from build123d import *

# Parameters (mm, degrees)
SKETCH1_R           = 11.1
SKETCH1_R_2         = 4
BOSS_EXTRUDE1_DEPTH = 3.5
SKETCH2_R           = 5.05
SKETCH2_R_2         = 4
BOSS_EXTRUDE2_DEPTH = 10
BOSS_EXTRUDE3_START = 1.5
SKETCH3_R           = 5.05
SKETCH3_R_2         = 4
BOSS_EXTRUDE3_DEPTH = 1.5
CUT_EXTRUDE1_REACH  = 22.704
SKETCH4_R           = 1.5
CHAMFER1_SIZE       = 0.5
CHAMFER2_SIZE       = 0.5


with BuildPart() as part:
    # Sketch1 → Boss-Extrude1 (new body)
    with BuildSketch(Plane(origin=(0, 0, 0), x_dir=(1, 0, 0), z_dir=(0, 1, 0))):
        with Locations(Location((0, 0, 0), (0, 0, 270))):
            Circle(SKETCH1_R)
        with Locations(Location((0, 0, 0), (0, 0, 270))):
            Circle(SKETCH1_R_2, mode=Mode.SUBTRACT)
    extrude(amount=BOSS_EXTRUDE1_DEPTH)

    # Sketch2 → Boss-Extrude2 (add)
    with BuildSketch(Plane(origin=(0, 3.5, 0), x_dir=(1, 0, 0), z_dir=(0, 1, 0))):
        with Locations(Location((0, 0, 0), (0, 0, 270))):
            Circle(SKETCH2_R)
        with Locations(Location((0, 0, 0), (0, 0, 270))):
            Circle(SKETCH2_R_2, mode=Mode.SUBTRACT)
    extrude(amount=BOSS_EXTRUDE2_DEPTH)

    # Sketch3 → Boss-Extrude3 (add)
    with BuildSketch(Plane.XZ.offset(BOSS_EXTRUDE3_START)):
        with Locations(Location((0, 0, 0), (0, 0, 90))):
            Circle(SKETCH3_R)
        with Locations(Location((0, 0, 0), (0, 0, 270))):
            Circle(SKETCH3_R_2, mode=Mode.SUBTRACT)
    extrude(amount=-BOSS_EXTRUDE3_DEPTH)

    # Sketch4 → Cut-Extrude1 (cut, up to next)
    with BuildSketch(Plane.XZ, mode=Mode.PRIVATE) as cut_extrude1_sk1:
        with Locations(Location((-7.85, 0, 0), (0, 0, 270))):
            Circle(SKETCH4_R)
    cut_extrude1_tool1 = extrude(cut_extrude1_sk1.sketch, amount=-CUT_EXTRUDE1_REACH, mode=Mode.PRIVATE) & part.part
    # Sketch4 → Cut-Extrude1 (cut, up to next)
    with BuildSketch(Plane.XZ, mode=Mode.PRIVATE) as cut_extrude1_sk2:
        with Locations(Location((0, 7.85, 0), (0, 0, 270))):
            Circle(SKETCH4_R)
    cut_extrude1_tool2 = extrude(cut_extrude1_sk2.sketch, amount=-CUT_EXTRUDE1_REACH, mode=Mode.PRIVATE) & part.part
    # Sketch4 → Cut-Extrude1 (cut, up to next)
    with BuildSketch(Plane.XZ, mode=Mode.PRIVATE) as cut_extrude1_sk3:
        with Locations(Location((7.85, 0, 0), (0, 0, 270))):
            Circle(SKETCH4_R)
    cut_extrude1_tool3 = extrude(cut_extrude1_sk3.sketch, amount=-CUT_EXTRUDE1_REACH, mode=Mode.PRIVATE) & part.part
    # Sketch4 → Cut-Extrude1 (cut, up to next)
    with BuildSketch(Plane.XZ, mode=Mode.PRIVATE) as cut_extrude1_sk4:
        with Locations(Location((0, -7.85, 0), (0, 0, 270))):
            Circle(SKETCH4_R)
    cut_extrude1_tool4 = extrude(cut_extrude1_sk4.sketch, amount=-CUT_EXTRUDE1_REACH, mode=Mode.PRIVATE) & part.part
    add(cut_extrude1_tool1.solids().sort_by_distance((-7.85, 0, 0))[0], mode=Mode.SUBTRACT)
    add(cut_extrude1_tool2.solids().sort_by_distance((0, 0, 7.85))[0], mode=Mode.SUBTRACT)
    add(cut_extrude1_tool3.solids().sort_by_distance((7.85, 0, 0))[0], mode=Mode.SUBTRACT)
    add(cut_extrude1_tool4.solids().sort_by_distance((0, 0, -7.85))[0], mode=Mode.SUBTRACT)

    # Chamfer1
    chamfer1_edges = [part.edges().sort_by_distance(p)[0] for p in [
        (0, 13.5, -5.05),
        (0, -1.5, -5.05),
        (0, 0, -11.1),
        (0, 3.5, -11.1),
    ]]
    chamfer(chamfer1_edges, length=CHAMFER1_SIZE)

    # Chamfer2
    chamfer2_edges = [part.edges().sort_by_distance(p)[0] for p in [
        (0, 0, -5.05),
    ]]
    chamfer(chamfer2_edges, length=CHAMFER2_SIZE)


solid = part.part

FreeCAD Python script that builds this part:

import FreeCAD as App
import Part
import Sketcher

V = App.Vector
Q = App.Units.Quantity


def edges_at(feature, points):
    """Names of the edges that pass closest to the given points."""
    edges = feature.Shape.Edges
    near = lambda p: min(range(len(edges)), key=lambda i: edges[i].distToShape(Part.Vertex(*p))[0])
    return sorted({f"Edge{near(p) + 1}" for p in points})

doc = App.newDocument("Part")
body = doc.addObject("PartDesign::Body", "Body")

sketch1 = doc.addObject("Sketcher::SketchObject", "Sketch")
body.addObject(sketch1)
sketch1.AttachmentSupport = (doc.XZ_Plane, [""])
sketch1.MapMode = "FlatFace"
sketch1.addGeometry([
    Part.Circle(V(0, 0, 0), V(0, 0, 1), 11.1),
    Part.Circle(V(0, 0, 0), V(0, 0, 1), 4),
], False)
sketch1.addConstraint([
    Sketcher.Constraint("Coincident", 0, 3, -1, 1),
    Sketcher.Constraint("Coincident", 1, 3, -1, 1),
    Sketcher.Constraint("Diameter", 1, Q("8 mm")),
    Sketcher.Constraint("Diameter", 0, Q("22.2 mm")),
])
pad1 = doc.addObject("PartDesign::Pad", "Pad")
body.addObject(pad1)
pad1.Profile = sketch1
pad1.Length = 3.5
pad1.Reversed = True

sketch2 = doc.addObject("Sketcher::SketchObject", "Sketch001")
body.addObject(sketch2)
sketch2.AttachmentSupport = (doc.XZ_Plane, [""])
sketch2.MapMode = "FlatFace"
sketch2.AttachmentOffset = App.Placement(V(0, 0, -3.5), App.Rotation())
sketch2.addGeometry([
    Part.Circle(V(0, 0, 0), V(0, 0, 1), 5),
    Part.Circle(V(0, 0, 0), V(0, 0, 1), 4),
], False)
sketch2.addConstraint([
    Sketcher.Constraint("Coincident", 0, 3, -1, 1),
    Sketcher.Constraint("Coincident", 1, 3, -1, 1),
    Sketcher.Constraint("Diameter", 1, Q("8 mm")),
    Sketcher.Constraint("Diameter", 0, Q("10.1 mm")),
])
pad2 = doc.addObject("PartDesign::Pad", "Pad001")
body.addObject(pad2)
pad2.Profile = sketch2
pad2.Length = 10
pad2.Reversed = True

sketch3 = doc.addObject("Sketcher::SketchObject", "Sketch002")
body.addObject(sketch3)
sketch3.AttachmentSupport = (doc.XZ_Plane, [""])
sketch3.MapMode = "FlatFace"
sketch3.AttachmentOffset = App.Placement(V(0, 0, 1.5), App.Rotation())
sketch3.addGeometry([
    Part.Circle(V(0, 0, 0), V(0, 0, 1), 5),
    Part.Circle(V(0, 0, 0), V(0, 0, 1), 4),
], False)
sketch3.addConstraint([
    Sketcher.Constraint("Coincident", 0, 3, -1, 1),
    Sketcher.Constraint("Coincident", 1, 3, -1, 1),
    Sketcher.Constraint("Diameter", 1, Q("8 mm")),
    Sketcher.Constraint("Diameter", 0, Q("10.1 mm")),
])
pad3 = doc.addObject("PartDesign::Pad", "Pad002")
body.addObject(pad3)
pad3.Profile = sketch3
pad3.Length = 1.5
pad3.Reversed = True

sketch4 = doc.addObject("Sketcher::SketchObject", "Sketch003")
body.addObject(sketch4)
sketch4.AttachmentSupport = (doc.XZ_Plane, [""])
sketch4.MapMode = "FlatFace"
sketch4.addGeometry(Part.Circle(V(-7.8, 0, 0), V(0, 0, 1), 1.5), False)
sketch4.addConstraint([
    Sketcher.Constraint("PointOnObject", 0, 3, -1),
    Sketcher.Constraint("Diameter", 0, Q("3 mm")),
    Sketcher.Constraint("DistanceX", 0, 3, -1, 1, Q("7.85 mm")),
])
pocket1 = doc.addObject("PartDesign::Pocket", "Pocket")
body.addObject(pocket1)
pocket1.Profile = sketch4
pocket1.Type = "UpToFirst"

sketch5 = doc.addObject("Sketcher::SketchObject", "Sketch004")
body.addObject(sketch5)
sketch5.AttachmentSupport = (doc.XZ_Plane, [""])
sketch5.MapMode = "FlatFace"
sketch5.addGeometry(Part.Circle(V(0, 7.8, 0), V(0, 0, 1), 1.5), False)
sketch5.addConstraint([
    Sketcher.Constraint("PointOnObject", 0, 3, -2),
    Sketcher.Constraint("Diameter", 0, Q("3 mm")),
    Sketcher.Constraint("DistanceY", -1, 1, 0, 3, Q("7.85 mm")),
])
pocket2 = doc.addObject("PartDesign::Pocket", "Pocket001")
body.addObject(pocket2)
pocket2.Profile = sketch5
pocket2.Type = "UpToFirst"

sketch6 = doc.addObject("Sketcher::SketchObject", "Sketch005")
body.addObject(sketch6)
sketch6.AttachmentSupport = (doc.XZ_Plane, [""])
sketch6.MapMode = "FlatFace"
sketch6.addGeometry(Part.Circle(V(7.8, 0, 0), V(0, 0, 1), 1.5), False)
sketch6.addConstraint([
    Sketcher.Constraint("PointOnObject", 0, 3, -1),
    Sketcher.Constraint("Diameter", 0, Q("3 mm")),
    Sketcher.Constraint("DistanceX", -1, 1, 0, 3, Q("7.85 mm")),
])
pocket3 = doc.addObject("PartDesign::Pocket", "Pocket002")
body.addObject(pocket3)
pocket3.Profile = sketch6
pocket3.Type = "UpToFirst"

sketch7 = doc.addObject("Sketcher::SketchObject", "Sketch006")
body.addObject(sketch7)
sketch7.AttachmentSupport = (doc.XZ_Plane, [""])
sketch7.MapMode = "FlatFace"
sketch7.addGeometry(Part.Circle(V(0, -7.8, 0), V(0, 0, 1), 1.5), False)
sketch7.addConstraint([
    Sketcher.Constraint("PointOnObject", 0, 3, -2),
    Sketcher.Constraint("Diameter", 0, Q("3 mm")),
    Sketcher.Constraint("DistanceY", 0, 3, -1, 1, Q("7.85 mm")),
])
pocket4 = doc.addObject("PartDesign::Pocket", "Pocket003")
body.addObject(pocket4)
pocket4.Profile = sketch7
pocket4.Type = "UpToFirst"
doc.recompute()

chamfer = doc.addObject("PartDesign::Chamfer", "Chamfer")
body.addObject(chamfer)
chamfer.Base = (pocket4, edges_at(pocket4, [
    (0, 13.5, -5.05),
    (0, -1.5, -5.05),
    (0, 0, -11.1),
    (0, 3.5, -11.1),
]))
chamfer.Size = 0.5
doc.recompute()

chamfer2 = doc.addObject("PartDesign::Chamfer", "Chamfer001")
body.addObject(chamfer2)
chamfer2.Base = (chamfer, edges_at(chamfer, [(0, 0, -5.05)]))
chamfer2.Size = 0.5

doc.recompute()
